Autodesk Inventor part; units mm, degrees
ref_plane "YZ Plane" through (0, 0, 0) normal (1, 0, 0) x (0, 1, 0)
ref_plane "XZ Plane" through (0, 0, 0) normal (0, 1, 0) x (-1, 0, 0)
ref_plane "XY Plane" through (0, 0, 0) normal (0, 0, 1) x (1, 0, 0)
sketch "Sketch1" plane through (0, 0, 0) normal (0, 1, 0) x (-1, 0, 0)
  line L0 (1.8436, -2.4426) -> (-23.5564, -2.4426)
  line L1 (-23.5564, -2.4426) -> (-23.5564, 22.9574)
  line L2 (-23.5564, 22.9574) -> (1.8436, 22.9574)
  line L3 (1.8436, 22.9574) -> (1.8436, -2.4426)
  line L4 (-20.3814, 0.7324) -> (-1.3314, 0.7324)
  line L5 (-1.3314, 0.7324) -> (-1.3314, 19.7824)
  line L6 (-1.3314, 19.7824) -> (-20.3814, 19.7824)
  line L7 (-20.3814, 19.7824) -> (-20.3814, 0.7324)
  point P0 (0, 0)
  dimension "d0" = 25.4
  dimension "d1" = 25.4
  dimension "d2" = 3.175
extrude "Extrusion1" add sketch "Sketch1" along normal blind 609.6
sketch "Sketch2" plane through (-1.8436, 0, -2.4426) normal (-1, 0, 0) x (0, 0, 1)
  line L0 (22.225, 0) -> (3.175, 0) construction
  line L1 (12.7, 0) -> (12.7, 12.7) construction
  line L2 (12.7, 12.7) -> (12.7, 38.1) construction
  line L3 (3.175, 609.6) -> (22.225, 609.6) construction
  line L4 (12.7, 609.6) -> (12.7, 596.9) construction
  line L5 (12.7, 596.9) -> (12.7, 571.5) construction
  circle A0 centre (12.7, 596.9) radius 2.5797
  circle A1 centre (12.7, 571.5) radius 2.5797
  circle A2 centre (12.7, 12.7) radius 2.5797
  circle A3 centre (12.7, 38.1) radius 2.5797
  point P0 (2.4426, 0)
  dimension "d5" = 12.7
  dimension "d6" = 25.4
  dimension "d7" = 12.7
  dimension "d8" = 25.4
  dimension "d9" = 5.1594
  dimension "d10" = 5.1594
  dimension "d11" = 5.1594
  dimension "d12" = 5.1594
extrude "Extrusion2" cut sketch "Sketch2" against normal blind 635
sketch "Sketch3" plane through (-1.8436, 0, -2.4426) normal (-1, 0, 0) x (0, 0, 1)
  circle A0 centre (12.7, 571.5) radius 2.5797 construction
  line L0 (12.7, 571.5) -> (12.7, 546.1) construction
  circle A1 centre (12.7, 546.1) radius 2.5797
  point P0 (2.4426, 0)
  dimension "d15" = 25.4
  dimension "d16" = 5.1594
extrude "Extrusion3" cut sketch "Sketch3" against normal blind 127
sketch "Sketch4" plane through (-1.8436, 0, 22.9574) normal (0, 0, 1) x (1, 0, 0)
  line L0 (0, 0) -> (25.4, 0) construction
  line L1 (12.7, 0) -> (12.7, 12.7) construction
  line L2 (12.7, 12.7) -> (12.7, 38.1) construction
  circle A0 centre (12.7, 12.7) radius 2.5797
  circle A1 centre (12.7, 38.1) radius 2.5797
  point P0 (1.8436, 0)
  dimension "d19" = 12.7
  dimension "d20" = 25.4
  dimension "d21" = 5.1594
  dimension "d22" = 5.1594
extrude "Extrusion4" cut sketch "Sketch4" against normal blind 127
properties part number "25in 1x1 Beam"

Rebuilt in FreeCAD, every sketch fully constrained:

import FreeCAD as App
import Part
import Sketcher

V = App.Vector
Q = App.Units.Quantity

doc = App.newDocument("Part")
body = doc.addObject("PartDesign::Body", "Body")

# Sketch on XZ plane
sketch1 = body.newObject("Sketcher::SketchObject", "Sketch")
sketch1.AttachmentSupport = (doc.getObject("XZ_Plane"), [""])
sketch1.MapMode = "FlatFace"
sketch1.addGeometry([
    Part.LineSegment(V(23.5564, -2.4426, 0), V(-1.8436, -2.4426, 0)),  # 0
    Part.LineSegment(V(-1.8436, -2.4426, 0), V(-1.8436, 22.9574, 0)),  # 1
    Part.LineSegment(V(-1.8436, 22.9574, 0), V(23.5564, 22.9574, 0)),  # 2
    Part.LineSegment(V(23.5564, 22.9574, 0), V(23.5564, -2.4426, 0)),  # 3
    Part.LineSegment(V(1.3314, 0.7324, 0), V(20.3814, 0.7324, 0)),  # 4
    Part.LineSegment(V(20.3814, 0.7324, 0), V(20.3814, 19.7824, 0)),  # 5
    Part.LineSegment(V(20.3814, 19.7824, 0), V(1.3314, 19.7824, 0)),  # 6
    Part.LineSegment(V(1.3314, 19.7824, 0), V(1.3314, 0.7324, 0)),  # 7
], False)
sketch1.addConstraint([
    Sketcher.Constraint("Coincident", 0, 2, 1, 1),
    Sketcher.Constraint("Coincident", 1, 2, 2, 1),
    Sketcher.Constraint("Coincident", 2, 2, 3, 1),
    Sketcher.Constraint("Coincident", 3, 2, 0, 1),
    Sketcher.Constraint("Coincident", 4, 2, 5, 1),
    Sketcher.Constraint("Coincident", 5, 2, 6, 1),
    Sketcher.Constraint("Coincident", 6, 2, 7, 1),
    Sketcher.Constraint("Coincident", 7, 2, 4, 1),
    Sketcher.Constraint("Horizontal", 0),
    Sketcher.Constraint("Vertical", 1),
    Sketcher.Constraint("Horizontal", 2),
    Sketcher.Constraint("Vertical", 3),
    Sketcher.Constraint("Horizontal", 4),
    Sketcher.Constraint("Vertical", 5),
    Sketcher.Constraint("Horizontal", 6),
    Sketcher.Constraint("Vertical", 7),
    Sketcher.Constraint("Equal", 2, 1),
    Sketcher.Constraint("Equal", 6, 5),
    Sketcher.Constraint("DistanceX", 0, 2, 0, 1, Q("1 in")),
    Sketcher.Constraint("DistanceX", 4, 2, 3, 2, Q("0.125 in")),
    Sketcher.Constraint("DistanceY", 3, 2, 4, 2, Q("0.125 in")),
    Sketcher.Constraint("DistanceY", 5, 2, 2, 2, Q("0.125 in")),
    Sketcher.Constraint("DistanceX", 0, 2, -1, 1, Q("1.8436 mm")),
    Sketcher.Constraint("DistanceY", 0, 2, -1, 1, Q("2.4426 mm")),
])
pad1 = body.newObject("PartDesign::Pad", "Pad")
pad1.Profile = sketch1
pad1.Length = Q("24 in")
pad1.Reversed = True

# Sketch on YZ plane
sketch2 = body.newObject("Sketcher::SketchObject", "Sketch001")
sketch2.AttachmentSupport = (doc.getObject("YZ_Plane"), [""])
sketch2.MapMode = "FlatFace"
sketch2.AttachmentOffset = App.Placement(V(0, 0, -1.8436), App.Rotation())
sketch2.addGeometry([
    Part.Circle(V(596.9, 10.2574, 0), V(0, 0, 1), 2.5797),
    Part.Circle(V(571.5, 10.2574, 0), V(0, 0, 1), 2.5797),
    Part.Circle(V(12.7, 10.2574, 0), V(0, 0, 1), 2.5797),
    Part.Circle(V(38.1, 10.2574, 0), V(0, 0, 1), 2.5797),
], False)
sketch2.addConstraint([
    Sketcher.Constraint("Equal", 0, 1),
    Sketcher.Constraint("Equal", 1, 2),
    Sketcher.Constraint("Equal", 2, 3),
    Sketcher.Constraint("Horizontal", 0, 3, 1, 3),
    Sketcher.Constraint("Horizontal", 1, 3, 2, 3),
    Sketcher.Constraint("Horizontal", 2, 3, 3, 3),
    Sketcher.Constraint("Diameter", 0, Q("0.203126 in")),
    Sketcher.Constraint("DistanceX", 1, 3, 0, 3, Q("1 in")),
    Sketcher.Constraint("DistanceX", 2, 3, 3, 3, Q("1 in")),
    Sketcher.Constraint("DistanceX", -1, 1, 2, 3, Q("0.5 in")),
    Sketcher.Constraint("DistanceX", 2, 3, 1, 3, Q("22 in")),
    Sketcher.Constraint("DistanceY", -1, 1, 0, 3, Q("10.2574 mm")),
])
pocket1 = body.newObject("PartDesign::Pocket", "Pocket")
pocket1.Profile = sketch2
pocket1.Length = Q("25 in")
pocket1.Reversed = True

# Sketch on YZ plane
sketch3 = body.newObject("Sketcher::SketchObject", "Sketch002")
sketch3.AttachmentSupport = (doc.getObject("YZ_Plane"), [""])
sketch3.MapMode = "FlatFace"
sketch3.AttachmentOffset = App.Placement(V(0, 0, -1.8436), App.Rotation())
sketch3.addGeometry(Part.Circle(V(546.1, 10.2574, 0), V(0, 0, 1), 2.5797), False)
sketch3.addConstraint([
    Sketcher.Constraint("Diameter", 0, Q("0.203126 in")),
    Sketcher.Constraint("DistanceX", -1, 1, 0, 3, Q("21.5 in")),
    Sketcher.Constraint("DistanceY", -1, 1, 0, 3, Q("10.2574 mm")),
])
pocket2 = body.newObject("PartDesign::Pocket", "Pocket001")
pocket2.Profile = sketch3
pocket2.Length = Q("5 in")
pocket2.Reversed = True

# Sketch on XY plane
sketch4 = body.newObject("Sketcher::SketchObject", "Sketch003")
sketch4.AttachmentSupport = (doc.getObject("XY_Plane"), [""])
sketch4.MapMode = "FlatFace"
sketch4.AttachmentOffset = App.Placement(V(0, 0, 22.9574), App.Rotation())
sketch4.addGeometry([
    Part.Circle(V(10.8564, 12.7, 0), V(0, 0, 1), 2.5797),
    Part.Circle(V(10.8564, 38.1, 0), V(0, 0, 1), 2.5797),
], False)
sketch4.addConstraint([
    Sketcher.Constraint("Equal", 0, 1),
    Sketcher.Constraint("Vertical", 0, 3, 1, 3),
    Sketcher.Constraint("Diameter", 0, Q("0.203126 in")),
    Sketcher.Constraint("DistanceY", 0, 3, 1, 3, Q("1 in")),
    Sketcher.Constraint("DistanceY", -1, 1, 0, 3, Q("0.5 in")),
    Sketcher.Constraint("DistanceX", -1, 1, 0, 3, Q("10.8564 mm")),
])
pocket3 = body.newObject("PartDesign::Pocket", "Pocket002")
pocket3.Profile = sketch4
pocket3.Length = Q("5 in")

doc.recompute()
